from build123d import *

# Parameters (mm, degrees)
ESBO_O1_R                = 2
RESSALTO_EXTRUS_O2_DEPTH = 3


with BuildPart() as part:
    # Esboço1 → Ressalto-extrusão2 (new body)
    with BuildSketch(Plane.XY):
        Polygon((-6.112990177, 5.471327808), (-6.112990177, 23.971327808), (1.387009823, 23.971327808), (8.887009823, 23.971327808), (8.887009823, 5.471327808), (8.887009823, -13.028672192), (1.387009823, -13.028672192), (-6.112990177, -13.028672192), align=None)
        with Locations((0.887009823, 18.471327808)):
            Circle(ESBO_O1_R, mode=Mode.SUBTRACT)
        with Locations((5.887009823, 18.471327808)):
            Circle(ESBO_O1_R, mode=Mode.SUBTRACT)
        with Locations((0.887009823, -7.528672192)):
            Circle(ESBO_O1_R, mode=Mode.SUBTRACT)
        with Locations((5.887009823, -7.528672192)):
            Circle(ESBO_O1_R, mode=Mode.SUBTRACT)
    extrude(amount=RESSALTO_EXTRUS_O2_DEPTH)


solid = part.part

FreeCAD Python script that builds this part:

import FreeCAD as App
import Part
import Sketcher
Q = App.Units.Quantity

doc = App.newDocument("Part")
body = doc.addObject("PartDesign::Body", "Body")

sketch1 = body.newObject("Sketcher::SketchObject", "Sketch")
sketch1.AttachmentSupport = (doc.getObject("XY_Plane"), [""])
sketch1.MapMode = "FlatFace"
sketch1.addGeometry([
    Part.LineSegment(App.Vector(-6.1, 24, 0), App.Vector(-6.1, -13, 0)),
    Part.LineSegment(App.Vector(-6.1, -13, 0), App.Vector(8.9, -13, 0)),
    Part.LineSegment(App.Vector(8.9, -13, 0), App.Vector(8.9, 24, 0)),
    Part.LineSegment(App.Vector(8.9, 24, 0), App.Vector(-6.1, 24, 0)),
    Part.Circle(App.Vector(5.9, -7.5, 0), App.Vector(0, 0, 1), 2),
    Part.Circle(App.Vector(0.9, -7.5, 0), App.Vector(0, 0, 1), 2),
    Part.Circle(App.Vector(5.9, 18.5, 0), App.Vector(0, 0, 1), 2),
    Part.Circle(App.Vector(0.9, 18.5, 0), App.Vector(0, 0, 1), 2),
], False)
sketch1.addConstraint([
    Sketcher.Constraint("Coincident", 0, 2, 1, 1),
    Sketcher.Constraint("Coincident", 1, 2, 2, 1),
    Sketcher.Constraint("Coincident", 2, 2, 3, 1),
    Sketcher.Constraint("Coincident", 3, 2, 0, 1),
    Sketcher.Constraint("Vertical", 0),
    Sketcher.Constraint("Horizontal", 1),
    Sketcher.Constraint("Vertical", 2),
    Sketcher.Constraint("Horizontal", 3),
    Sketcher.Constraint("Equal", 4, 5),
    Sketcher.Constraint("Equal", 5, 6),
    Sketcher.Constraint("Equal", 6, 7),
    Sketcher.Constraint("Horizontal", 4, 3, 5, 3),
    Sketcher.Constraint("Horizontal", 6, 3, 7, 3),
    Sketcher.Constraint("Vertical", 4, 3, 6, 3),
    Sketcher.Constraint("Vertical", 5, 3, 7, 3),
    Sketcher.Constraint("Diameter", 4, Q("4 mm")),
    Sketcher.Constraint("DistanceX", 1, 1, 1, 2, Q("15 mm")),
    Sketcher.Constraint("DistanceY", 0, 2, 0, 1, Q("37 mm")),
    Sketcher.Constraint("DistanceX", 5, 3, 4, 3, Q("5 mm")),
    Sketcher.Constraint("DistanceY", 4, 3, 6, 3, Q("26 mm")),
    Sketcher.Constraint("DistanceX", 0, 2, 5, 3, Q("7 mm")),
    Sketcher.Constraint("DistanceY", 0, 2, 5, 3, Q("5.5 mm")),
    Sketcher.Constraint("DistanceX", -1, 1, 4, 3, Q("5.88701 mm")),
    Sketcher.Constraint("DistanceY", 4, 3, -1, 1, Q("7.528672 mm")),
])
pad1 = body.newObject("PartDesign::Pad", "Pad")
pad1.Profile = sketch1
pad1.Length = 3

doc.recompute()
